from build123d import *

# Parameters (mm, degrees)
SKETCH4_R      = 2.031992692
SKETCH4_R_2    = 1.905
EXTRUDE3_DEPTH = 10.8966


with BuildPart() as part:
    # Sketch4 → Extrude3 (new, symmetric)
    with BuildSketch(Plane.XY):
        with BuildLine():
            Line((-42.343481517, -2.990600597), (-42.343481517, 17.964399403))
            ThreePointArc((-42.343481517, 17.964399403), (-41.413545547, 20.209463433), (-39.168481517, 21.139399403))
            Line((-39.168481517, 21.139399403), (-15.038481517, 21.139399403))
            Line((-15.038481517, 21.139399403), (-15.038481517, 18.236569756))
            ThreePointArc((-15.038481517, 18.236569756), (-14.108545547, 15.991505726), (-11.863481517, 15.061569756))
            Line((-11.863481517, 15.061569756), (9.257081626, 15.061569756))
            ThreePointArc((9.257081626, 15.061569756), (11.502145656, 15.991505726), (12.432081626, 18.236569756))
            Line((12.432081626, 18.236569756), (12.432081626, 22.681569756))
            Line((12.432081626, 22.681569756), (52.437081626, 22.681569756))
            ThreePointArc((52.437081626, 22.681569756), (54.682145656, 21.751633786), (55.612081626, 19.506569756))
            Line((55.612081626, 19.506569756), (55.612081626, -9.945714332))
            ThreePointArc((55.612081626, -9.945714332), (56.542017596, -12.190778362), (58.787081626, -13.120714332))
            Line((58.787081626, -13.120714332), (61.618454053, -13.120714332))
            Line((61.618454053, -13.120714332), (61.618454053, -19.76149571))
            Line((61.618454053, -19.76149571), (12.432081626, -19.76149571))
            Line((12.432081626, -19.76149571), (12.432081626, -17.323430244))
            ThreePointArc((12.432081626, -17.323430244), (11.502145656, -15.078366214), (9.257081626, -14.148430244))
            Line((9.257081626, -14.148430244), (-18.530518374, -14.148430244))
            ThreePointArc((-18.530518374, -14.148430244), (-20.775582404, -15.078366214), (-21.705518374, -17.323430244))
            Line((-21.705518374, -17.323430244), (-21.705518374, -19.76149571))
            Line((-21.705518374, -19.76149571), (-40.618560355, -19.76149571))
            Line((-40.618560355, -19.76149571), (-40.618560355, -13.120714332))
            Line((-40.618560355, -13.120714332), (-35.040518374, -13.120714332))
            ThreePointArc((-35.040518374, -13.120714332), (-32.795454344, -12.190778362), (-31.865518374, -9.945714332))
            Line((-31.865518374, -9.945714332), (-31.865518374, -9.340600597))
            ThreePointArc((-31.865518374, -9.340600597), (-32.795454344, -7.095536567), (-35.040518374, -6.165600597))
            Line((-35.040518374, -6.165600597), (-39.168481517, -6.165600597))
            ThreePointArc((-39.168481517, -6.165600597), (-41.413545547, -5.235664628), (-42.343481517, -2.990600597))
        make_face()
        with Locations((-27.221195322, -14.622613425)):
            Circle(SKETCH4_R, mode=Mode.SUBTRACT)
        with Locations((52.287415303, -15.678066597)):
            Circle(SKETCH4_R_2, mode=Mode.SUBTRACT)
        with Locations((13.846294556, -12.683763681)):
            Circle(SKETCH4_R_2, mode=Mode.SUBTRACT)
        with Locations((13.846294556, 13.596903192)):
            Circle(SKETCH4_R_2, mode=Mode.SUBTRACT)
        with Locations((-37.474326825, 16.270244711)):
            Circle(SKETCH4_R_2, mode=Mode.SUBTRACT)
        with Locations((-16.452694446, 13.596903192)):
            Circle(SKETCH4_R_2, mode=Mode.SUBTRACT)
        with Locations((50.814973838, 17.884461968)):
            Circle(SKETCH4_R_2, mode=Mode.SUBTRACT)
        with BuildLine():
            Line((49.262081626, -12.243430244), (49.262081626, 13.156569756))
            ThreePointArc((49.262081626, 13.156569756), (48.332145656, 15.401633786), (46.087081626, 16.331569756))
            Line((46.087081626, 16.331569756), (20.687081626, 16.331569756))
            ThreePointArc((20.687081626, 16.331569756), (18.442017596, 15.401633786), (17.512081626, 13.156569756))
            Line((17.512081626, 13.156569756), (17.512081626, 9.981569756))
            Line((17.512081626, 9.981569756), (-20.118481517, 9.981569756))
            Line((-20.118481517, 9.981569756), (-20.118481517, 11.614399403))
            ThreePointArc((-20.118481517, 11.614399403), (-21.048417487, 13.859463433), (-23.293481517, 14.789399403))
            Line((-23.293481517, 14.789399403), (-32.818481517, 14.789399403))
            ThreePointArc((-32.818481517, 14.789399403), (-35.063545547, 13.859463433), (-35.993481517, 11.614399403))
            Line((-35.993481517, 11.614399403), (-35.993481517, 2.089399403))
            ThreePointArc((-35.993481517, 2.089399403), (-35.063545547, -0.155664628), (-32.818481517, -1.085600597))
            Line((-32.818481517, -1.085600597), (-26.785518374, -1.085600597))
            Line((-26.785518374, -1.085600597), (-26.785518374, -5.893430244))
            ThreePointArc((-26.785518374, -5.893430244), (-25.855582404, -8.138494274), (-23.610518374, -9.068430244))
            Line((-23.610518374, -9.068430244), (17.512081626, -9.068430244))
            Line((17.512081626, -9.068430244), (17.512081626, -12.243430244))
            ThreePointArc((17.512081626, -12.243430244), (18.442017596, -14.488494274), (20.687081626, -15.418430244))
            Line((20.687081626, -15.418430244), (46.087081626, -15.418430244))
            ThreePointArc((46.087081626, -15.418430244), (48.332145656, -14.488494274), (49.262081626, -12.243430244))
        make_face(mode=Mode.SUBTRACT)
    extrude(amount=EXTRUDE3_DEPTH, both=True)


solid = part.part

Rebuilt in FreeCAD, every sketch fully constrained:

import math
import FreeCAD as App
import Part
import Sketcher

V = App.Vector
Q = App.Units.Quantity

doc = App.newDocument("Part")
body = doc.addObject("PartDesign::Body", "Body")

# Sketch on XY plane
sketch1 = doc.addObject("Sketcher::SketchObject", "Sketch")
body.addObject(sketch1)
sketch1.AttachmentSupport = (doc.XY_Plane, [""])
sketch1.MapMode = "FlatFace"
sketch1.addGeometry([
    Part.LineSegment(V(-42.3, 18, 0), V(-42.3, -3, 0)),  # 0
    Part.ArcOfCircle(Part.Circle(V(-39.2, -3, 0), V(0, 0, 1), 3.2), math.radians(180), math.radians(270)),  # 1
    Part.LineSegment(V(-39.2, -6.2, 0), V(-35, -6.2, 0)),  # 2
    Part.ArcOfCircle(Part.Circle(V(-35, -9.3, 0), V(0, 0, 1), 3.2), math.radians(0), math.radians(90)),  # 3
    Part.LineSegment(V(-31.9, -9.3, 0), V(-31.9, -9.9, 0)),  # 4
    Part.ArcOfCircle(Part.Circle(V(-35, -9.9, 0), V(0, 0, 1), 3.2), math.radians(-90), math.radians(0)),  # 5
    Part.LineSegment(V(-35, -13.1, 0), V(-40.6, -13.1, 0)),  # 6
    Part.LineSegment(V(-40.6, -13.1, 0), V(-40.6, -19.8, 0)),  # 7
    Part.LineSegment(V(-40.6, -19.8, 0), V(-21.7, -19.8, 0)),  # 8
    Part.LineSegment(V(-21.7, -19.8, 0), V(-21.7, -17.3, 0)),  # 9
    Part.ArcOfCircle(Part.Circle(V(-18.5, -17.3, 0), V(0, 0, 1), 3.2), math.radians(90), math.radians(180)),  # 10
    Part.LineSegment(V(-18.5, -14.1, 0), V(9.3, -14.1, 0)),  # 11
    Part.ArcOfCircle(Part.Circle(V(9.3, -17.3, 0), V(0, 0, 1), 3.2), math.radians(0), math.radians(90)),  # 12
    Part.LineSegment(V(12.4, -17.3, 0), V(12.4, -19.8, 0)),  # 13
    Part.LineSegment(V(12.4, -19.8, 0), V(61.6, -19.8, 0)),  # 14
    Part.LineSegment(V(61.6, -19.8, 0), V(61.6, -13.1, 0)),  # 15
    Part.LineSegment(V(61.6, -13.1, 0), V(58.8, -13.1, 0)),  # 16
    Part.ArcOfCircle(Part.Circle(V(58.8, -9.9, 0), V(0, 0, 1), 3.2), math.radians(-180), math.radians(-90)),  # 17
    Part.LineSegment(V(55.6, -9.9, 0), V(55.6, 19.5, 0)),  # 18
    Part.ArcOfCircle(Part.Circle(V(52.4, 19.5, 0), V(0, 0, 1), 3.2), math.radians(0), math.radians(90)),  # 19
    Part.LineSegment(V(52.4, 22.7, 0), V(12.4, 22.7, 0)),  # 20
    Part.LineSegment(V(12.4, 22.7, 0), V(12.4, 18.2, 0)),  # 21
    Part.ArcOfCircle(Part.Circle(V(9.3, 18.2, 0), V(0, 0, 1), 3.2), math.radians(-90), math.radians(0)),  # 22
    Part.LineSegment(V(9.3, 15.1, 0), V(-11.9, 15.1, 0)),  # 23
    Part.ArcOfCircle(Part.Circle(V(-11.9, 18.2, 0), V(0, 0, 1), 3.2), math.radians(-180), math.radians(-90)),  # 24
    Part.LineSegment(V(-15, 18.2, 0), V(-15, 21.1, 0)),  # 25
    Part.LineSegment(V(-15, 21.1, 0), V(-39.2, 21.1, 0)),  # 26
    Part.ArcOfCircle(Part.Circle(V(-39.2, 18, 0), V(0, 0, 1), 3.2), math.radians(90), math.radians(180)),  # 27
    Part.Circle(V(52.3, -15.7, 0), V(0, 0, 1), 1.9),  # 28
    Part.Circle(V(13.8, -12.7, 0), V(0, 0, 1), 1.9),  # 29
    Part.Circle(V(-27.2, -14.6, 0), V(0, 0, 1), 2),  # 30
    Part.ArcOfCircle(Part.Circle(V(46.1, -12.2, 0), V(0, 0, 1), 3.2), math.radians(-90), math.radians(0)),  # 31
    Part.LineSegment(V(46.1, -15.4, 0), V(20.7, -15.4, 0)),  # 32
    Part.ArcOfCircle(Part.Circle(V(20.7, -12.2, 0), V(0, 0, 1), 3.2), math.radians(-180), math.radians(-90)),  # 33
    Part.LineSegment(V(17.5, -12.2, 0), V(17.5, -9.1, 0)),  # 34
    Part.LineSegment(V(17.5, -9.1, 0), V(-23.6, -9.1, 0)),  # 35
    Part.ArcOfCircle(Part.Circle(V(-23.6, -5.9, 0), V(0, 0, 1), 3.2), math.radians(-180), math.radians(-90)),  # 36
    Part.LineSegment(V(-26.8, -5.9, 0), V(-26.8, -1.1, 0)),  # 37
    Part.LineSegment(V(-26.8, -1.1, 0), V(-32.8, -1.1, 0)),  # 38
    Part.ArcOfCircle(Part.Circle(V(-32.8, 2.1, 0), V(0, 0, 1), 3.2), math.radians(180), math.radians(270)),  # 39
    Part.LineSegment(V(-36, 2.1, 0), V(-36, 11.6, 0)),  # 40
    Part.ArcOfCircle(Part.Circle(V(-32.8, 11.6, 0), V(0, 0, 1), 3.2), math.radians(90), math.radians(180)),  # 41
    Part.LineSegment(V(-32.8, 14.8, 0), V(-23.3, 14.8, 0)),  # 42
    Part.ArcOfCircle(Part.Circle(V(-23.3, 11.6, 0), V(0, 0, 1), 3.2), math.radians(0), math.radians(90)),  # 43
    Part.LineSegment(V(-20.1, 11.6, 0), V(-20.1, 10, 0)),  # 44
    Part.LineSegment(V(-20.1, 10, 0), V(17.5, 10, 0)),  # 45
    Part.LineSegment(V(17.5, 10, 0), V(17.5, 13.2, 0)),  # 46
    Part.ArcOfCircle(Part.Circle(V(20.7, 13.2, 0), V(0, 0, 1), 3.2), math.radians(90), math.radians(180)),  # 47
    Part.LineSegment(V(20.7, 16.3, 0), V(46.1, 16.3, 0)),  # 48
    Part.ArcOfCircle(Part.Circle(V(46.1, 13.2, 0), V(0, 0, 1), 3.2), math.radians(0), math.radians(90)),  # 49
    Part.LineSegment(V(49.3, 13.2, 0), V(49.3, -12.2, 0)),  # 50
    Part.Circle(V(50.8, 17.9, 0), V(0, 0, 1), 1.9),  # 51
    Part.Circle(V(13.8, 13.6, 0), V(0, 0, 1), 1.9),  # 52
    Part.Circle(V(-16.5, 13.6, 0), V(0, 0, 1), 1.9),  # 53
    Part.Circle(V(-37.5, 16.3, 0), V(0, 0, 1), 1.9),  # 54
], False)
sketch1.addConstraint([
    Sketcher.Constraint("Tangent", 0, 2, 1, 1),
    Sketcher.Constraint("Tangent", 1, 2, 2, 1),
    Sketcher.Constraint("Tangent", 2, 2, 3, 2),
    Sketcher.Constraint("Tangent", 3, 1, 4, 1),
    Sketcher.Constraint("Tangent", 4, 2, 5, 2),
    Sketcher.Constraint("Tangent", 5, 1, 6, 1),
    Sketcher.Constraint("Coincident", 6, 2, 7, 1),
    Sketcher.Constraint("Coincident", 7, 2, 8, 1),
    Sketcher.Constraint("Coincident", 8, 2, 9, 1),
    Sketcher.Constraint("Tangent", 9, 2, 10, 2),
    Sketcher.Constraint("Tangent", 10, 1, 11, 1),
    Sketcher.Constraint("Tangent", 11, 2, 12, 2),
    Sketcher.Constraint("Tangent", 12, 1, 13, 1),
    Sketcher.Constraint("Coincident", 13, 2, 14, 1),
    Sketcher.Constraint("Coincident", 14, 2, 15, 1),
    Sketcher.Constraint("Coincident", 15, 2, 16, 1),
    Sketcher.Constraint("Tangent", 16, 2, 17, 2),
    Sketcher.Constraint("Tangent", 17, 1, 18, 1),
    Sketcher.Constraint("Tangent", 18, 2, 19, 1),
    Sketcher.Constraint("Tangent", 19, 2, 20, 1),
    Sketcher.Constraint("Coincident", 20, 2, 21, 1),
    Sketcher.Constraint("Tangent", 21, 2, 22, 2),
    Sketcher.Constraint("Tangent", 22, 1, 23, 1),
    Sketcher.Constraint("Tangent", 23, 2, 24, 2),
    Sketcher.Constraint("Tangent", 24, 1, 25, 1),
    Sketcher.Constraint("Coincident", 25, 2, 26, 1),
    Sketcher.Constraint("Tangent", 26, 2, 27, 1),
    Sketcher.Constraint("Tangent", 27, 2, 0, 1),
    Sketcher.Constraint("Tangent", 31, 1, 32, 1),
    Sketcher.Constraint("Tangent", 32, 2, 33, 2),
    Sketcher.Constraint("Tangent", 33, 1, 34, 1),
    Sketcher.Constraint("Coincident", 34, 2, 35, 1),
    Sketcher.Constraint("Tangent", 35, 2, 36, 2),
    Sketcher.Constraint("Tangent", 36, 1, 37, 1),
    Sketcher.Constraint("Coincident", 37, 2, 38, 1),
    Sketcher.Constraint("Tangent", 38, 2, 39, 2),
    Sketcher.Constraint("Tangent", 39, 1, 40, 1),
    Sketcher.Constraint("Tangent", 40, 2, 41, 2),
    Sketcher.Constraint("Tangent", 41, 1, 42, 1),
    Sketcher.Constraint("Tangent", 42, 2, 43, 2),
    Sketcher.Constraint("Tangent", 43, 1, 44, 1),
    Sketcher.Constraint("Coincident", 44, 2, 45, 1),
    Sketcher.Constraint("Coincident", 45, 2, 46, 1),
    Sketcher.Constraint("Tangent", 46, 2, 47, 2),
    Sketcher.Constraint("Tangent", 47, 1, 48, 1),
    Sketcher.Constraint("Tangent", 48, 2, 49, 2),
    Sketcher.Constraint("Tangent", 49, 1, 50, 1),
    Sketcher.Constraint("Tangent", 50, 2, 31, 2),
    Sketcher.Constraint("Vertical", 0),
    Sketcher.Constraint("Horizontal", 2),
    Sketcher.Constraint("Vertical", 4),
    Sketcher.Constraint("Horizontal", 6),
    Sketcher.Constraint("Vertical", 7),
    Sketcher.Constraint("Horizontal", 8),
    Sketcher.Constraint("Vertical", 9),
    Sketcher.Constraint("Horizontal", 11),
    Sketcher.Constraint("Vertical", 13),
    Sketcher.Constraint("Horizontal", 14),
    Sketcher.Constraint("Vertical", 15),
    Sketcher.Constraint("Horizontal", 16),
    Sketcher.Constraint("Vertical", 18),
    Sketcher.Constraint("Horizontal", 20),
    Sketcher.Constraint("Vertical", 21),
    Sketcher.Constraint("Horizontal", 23),
    Sketcher.Constraint("Vertical", 25),
    Sketcher.Constraint("Horizontal", 26),
    Sketcher.Constraint("Horizontal", 32),
    Sketcher.Constraint("Vertical", 34),
    Sketcher.Constraint("Horizontal", 35),
    Sketcher.Constraint("Vertical", 37),
    Sketcher.Constraint("Horizontal", 38),
    Sketcher.Constraint("Vertical", 40),
    Sketcher.Constraint("Horizontal", 42),
    Sketcher.Constraint("Vertical", 44),
    Sketcher.Constraint("Horizontal", 45),
    Sketcher.Constraint("Vertical", 46),
    Sketcher.Constraint("Horizontal", 48),
    Sketcher.Constraint("Vertical", 50),
    Sketcher.Constraint("Equal", 1, 3),
    Sketcher.Constraint("Equal", 3, 5),
    Sketcher.Constraint("Equal", 5, 10),
    Sketcher.Constraint("Equal", 10, 12),
    Sketcher.Constraint("Equal", 12, 17),
    Sketcher.Constraint("Equal", 17, 19),
    Sketcher.Constraint("Equal", 19, 22),
    Sketcher.Constraint("Equal", 22, 24),
    Sketcher.Constraint("Equal", 24, 27),
    Sketcher.Constraint("Equal", 28, 29),
    Sketcher.Constraint("Equal", 27, 31),
    Sketcher.Constraint("Equal", 31, 33),
    Sketcher.Constraint("Equal", 33, 36),
    Sketcher.Constraint("Equal", 36, 39),
    Sketcher.Constraint("Equal", 39, 41),
    Sketcher.Constraint("Equal", 41, 43),
    Sketcher.Constraint("Equal", 43, 47),
    Sketcher.Constraint("Equal", 47, 49),
    Sketcher.Constraint("Equal", 29, 51),
    Sketcher.Constraint("Equal", 51, 52),
    Sketcher.Constraint("Equal", 52, 53),
    Sketcher.Constraint("Equal", 53, 54),
    Sketcher.Constraint("Horizontal", 5, 3, 17, 3),
    Sketcher.Constraint("Horizontal", 52, 3, 53, 3),
    Sketcher.Constraint("Horizontal", 8, 2, 13, 2),
    Sketcher.Constraint("Vertical", 12, 3, 22, 3),
    Sketcher.Constraint("Vertical", 33, 3, 47, 3),
    Sketcher.Constraint("Vertical", 29, 3, 52, 3),
    Sketcher.Constraint("Equal", 42, 40),
    Sketcher.Constraint("Equal", 34, 46),
    Sketcher.Constraint("Equal", 48, 50),
    Sketcher.Constraint("Diameter", 28, Q("0.15 in")),
    Sketcher.Constraint("DistanceX", 32, 2, 32, 1, Q("1 in")),
    Sketcher.Constraint("Radius", 1, Q("0.125 in")),
    Sketcher.Constraint("DistanceX", 26, 2, 26, 1, Q("0.95 in")),
    Sketcher.Constraint("DistanceX", 11, 1, 11, 2, Q("1.094 in")),
    Sketcher.Constraint("DistanceX", 20, 2, 20, 1, Q("1.575 in")),
    Sketcher.Constraint("DistanceX", 35, 2, 35, 1, Q("1.619 in")),
    Sketcher.Constraint("DistanceX", 42, 1, 42, 2, Q("0.375 in")),
    Sketcher.Constraint("DistanceY", 0, 2, 0, 1, Q("0.825 in")),
    Sketcher.Constraint("DistanceY", 21, 2, 21, 1, Q("0.175 in")),
    Sketcher.Constraint("DistanceY", 34, 1, 34, 2, Q("0.125 in")),
    Sketcher.Constraint("Diameter", 30, Q("4.063985 mm")),
    Sketcher.Constraint("DistanceX", 6, 2, 6, 1, Q("5.578042 mm")),
    Sketcher.Constraint("DistanceX", 8, 1, 8, 2, Q("18.913042 mm")),
    Sketcher.Constraint("DistanceY", 7, 2, 7, 1, Q("6.640781 mm")),
    Sketcher.Constraint("DistanceY", 25, 1, 25, 2, Q("2.90283 mm")),
    Sketcher.Constraint("DistanceY", 37, 1, 37, 2, Q("4.80783 mm")),
    Sketcher.Constraint("DistanceY", 1, 3, -1, 1, Q("2.990601 mm")),
    Sketcher.Constraint("DistanceY", -1, 1, 39, 3, Q("2.089399 mm")),
    Sketcher.Constraint("DistanceX", 2, 1, 2, 2, Q("4.127963 mm")),
    Sketcher.Constraint("DistanceX", 14, 1, 14, 2, Q("49.186372 mm")),
    Sketcher.Constraint("DistanceX", 38, 2, 38, 1, Q("6.032963 mm")),
    Sketcher.Constraint("DistanceY", 4, 2, 4, 1, Q("0.605114 mm")),
    Sketcher.Constraint("DistanceY", 9, 1, 9, 2, Q("2.438065 mm")),
    Sketcher.Constraint("DistanceX", 1, 3, -1, 1, Q("39.168482 mm")),
    Sketcher.Constraint("DistanceX", -1, 1, 31, 3, Q("46.087082 mm")),
    Sketcher.Constraint("DistanceY", -1, 1, 51, 3, Q("17.884462 mm")),
    Sketcher.Constraint("DistanceX", -1, 1, 28, 3, Q("52.287415 mm")),
    Sketcher.Constraint("DistanceY", 28, 3, -1, 1, Q("15.678067 mm")),
    Sketcher.Constraint("DistanceX", -1, 1, 29, 3, Q("13.846295 mm")),
    Sketcher.Constraint("DistanceY", 29, 3, -1, 1, Q("12.683764 mm")),
    Sketcher.Constraint("DistanceX", 30, 3, -1, 1, Q("27.221195 mm")),
    Sketcher.Constraint("DistanceY", 30, 3, -1, 1, Q("14.622613 mm")),
    Sketcher.Constraint("DistanceX", -1, 1, 51, 3, Q("50.814974 mm")),
    Sketcher.Constraint("DistanceY", -1, 1, 52, 3, Q("13.596903 mm")),
    Sketcher.Constraint("DistanceX", 53, 3, -1, 1, Q("16.452694 mm")),
    Sketcher.Constraint("DistanceX", 54, 3, -1, 1, Q("37.474327 mm")),
    Sketcher.Constraint("DistanceY", -1, 1, 54, 3, Q("16.270245 mm")),
])
pad1 = doc.addObject("PartDesign::Pad", "Pad")
body.addObject(pad1)
pad1.Profile = sketch1
pad1.Length = Q("0.858 in")
pad1.Midplane = True

doc.recompute()
